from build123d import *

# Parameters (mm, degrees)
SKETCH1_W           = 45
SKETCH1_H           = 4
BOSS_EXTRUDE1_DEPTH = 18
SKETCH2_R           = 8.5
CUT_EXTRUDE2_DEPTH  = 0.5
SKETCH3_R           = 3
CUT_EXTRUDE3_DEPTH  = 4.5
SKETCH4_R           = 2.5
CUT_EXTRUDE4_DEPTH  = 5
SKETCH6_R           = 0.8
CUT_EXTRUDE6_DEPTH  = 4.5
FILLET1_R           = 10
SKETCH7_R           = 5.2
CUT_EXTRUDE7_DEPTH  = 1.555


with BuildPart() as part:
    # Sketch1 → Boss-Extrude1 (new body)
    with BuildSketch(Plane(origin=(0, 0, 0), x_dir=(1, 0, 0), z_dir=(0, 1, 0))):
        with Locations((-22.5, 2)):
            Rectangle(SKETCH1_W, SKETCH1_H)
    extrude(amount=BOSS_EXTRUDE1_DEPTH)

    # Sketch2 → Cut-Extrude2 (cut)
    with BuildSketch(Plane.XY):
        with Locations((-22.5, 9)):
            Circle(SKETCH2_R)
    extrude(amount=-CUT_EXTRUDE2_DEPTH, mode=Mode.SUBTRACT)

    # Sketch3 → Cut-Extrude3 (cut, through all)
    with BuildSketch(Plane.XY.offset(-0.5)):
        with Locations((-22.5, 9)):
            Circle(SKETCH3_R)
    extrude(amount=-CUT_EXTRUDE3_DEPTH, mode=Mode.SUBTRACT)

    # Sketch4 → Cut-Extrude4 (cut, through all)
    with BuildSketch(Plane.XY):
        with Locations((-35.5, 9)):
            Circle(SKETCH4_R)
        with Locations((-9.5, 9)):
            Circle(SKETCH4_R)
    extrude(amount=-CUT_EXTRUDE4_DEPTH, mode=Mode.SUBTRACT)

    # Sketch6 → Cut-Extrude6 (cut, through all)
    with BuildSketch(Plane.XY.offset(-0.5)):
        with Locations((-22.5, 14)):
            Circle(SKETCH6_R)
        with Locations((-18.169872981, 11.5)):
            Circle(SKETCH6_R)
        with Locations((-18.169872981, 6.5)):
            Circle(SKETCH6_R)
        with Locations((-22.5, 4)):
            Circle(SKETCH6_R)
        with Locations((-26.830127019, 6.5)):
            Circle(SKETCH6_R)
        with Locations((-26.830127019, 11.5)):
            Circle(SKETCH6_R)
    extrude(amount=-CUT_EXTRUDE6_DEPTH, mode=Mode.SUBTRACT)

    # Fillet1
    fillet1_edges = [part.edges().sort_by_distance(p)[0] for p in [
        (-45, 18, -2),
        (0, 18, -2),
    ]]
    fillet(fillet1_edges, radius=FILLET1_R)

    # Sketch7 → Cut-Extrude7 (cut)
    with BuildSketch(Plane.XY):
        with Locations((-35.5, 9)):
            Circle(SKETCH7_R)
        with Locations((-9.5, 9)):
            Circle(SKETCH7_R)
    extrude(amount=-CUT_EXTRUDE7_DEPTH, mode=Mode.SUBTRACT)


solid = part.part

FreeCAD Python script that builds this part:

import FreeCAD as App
import Part
import Sketcher


def edges_at(feature, points):
    """Names of the edges that pass closest to the given points."""
    edges = feature.Shape.Edges
    near = lambda p: min(range(len(edges)), key=lambda i: edges[i].distToShape(Part.Vertex(*p))[0])
    return sorted({f"Edge{near(p) + 1}" for p in points})

doc = App.newDocument("Part")
body = doc.addObject("PartDesign::Body", "Body")

# Sketch on XZ plane
sketch1 = body.newObject("Sketcher::SketchObject", "Sketch")
sketch1.AttachmentSupport = (doc.getObject("XZ_Plane"), [""])
sketch1.MapMode = "FlatFace"
sketch1.addGeometry(Part.LineSegment(App.Vector(-45, -4, 0), App.Vector(-45, 0, 0)), False)
sketch1.addGeometry(Part.LineSegment(App.Vector(-45, 0, 0), App.Vector(0, 0, 0)), False)
sketch1.addGeometry(Part.LineSegment(App.Vector(0, 0, 0), App.Vector(0, -4, 0)), False)
sketch1.addGeometry(Part.LineSegment(App.Vector(0, -4, 0), App.Vector(-45, -4, 0)), False)
sketch1.addConstraint(Sketcher.Constraint("Coincident", 0, 2, 1, 1))
sketch1.addConstraint(Sketcher.Constraint("Coincident", 1, 2, 2, 1))
sketch1.addConstraint(Sketcher.Constraint("Coincident", 2, 2, 3, 1))
sketch1.addConstraint(Sketcher.Constraint("Coincident", 3, 2, 0, 1))
sketch1.addConstraint(Sketcher.Constraint("Vertical", 0))
sketch1.addConstraint(Sketcher.Constraint("Horizontal", 1))
sketch1.addConstraint(Sketcher.Constraint("Vertical", 2))
sketch1.addConstraint(Sketcher.Constraint("Horizontal", 3))
sketch1.addConstraint(Sketcher.Constraint("Coincident", 1, 2, -1, 1))
sketch1.addConstraint(Sketcher.Constraint("DistanceX", 1, 1, 1, 2, 45.0))
sketch1.addConstraint(Sketcher.Constraint("DistanceY", 0, 1, 0, 2, 4.0))
pad1 = body.newObject("PartDesign::Pad", "Pad")
pad1.Profile = sketch1
pad1.Length = 18
pad1.Reversed = True

# Sketch on XY plane
sketch2 = body.newObject("Sketcher::SketchObject", "Sketch001")
sketch2.AttachmentSupport = (doc.getObject("XY_Plane"), [""])
sketch2.MapMode = "FlatFace"
sketch2.addGeometry(Part.Circle(App.Vector(-22.5, 9, 0), App.Vector(0, 0, 1), 8.5), False)
sketch2.addConstraint(Sketcher.Constraint("Diameter", 0, 17.0))
sketch2.addConstraint(Sketcher.Constraint("DistanceY", -1, 1, 0, 3, 9.0))
sketch2.addConstraint(Sketcher.Constraint("DistanceX", 0, 3, -1, 1, 22.5))
pocket1 = body.newObject("PartDesign::Pocket", "Pocket")
pocket1.Profile = sketch2
pocket1.Length = 0.5

# Sketch on XY plane
sketch3 = body.newObject("Sketcher::SketchObject", "Sketch002")
sketch3.AttachmentSupport = (doc.getObject("XY_Plane"), [""])
sketch3.MapMode = "FlatFace"
sketch3.AttachmentOffset = App.Placement(App.Vector(0, 0, -0.5), App.Rotation())
sketch3.addGeometry(Part.Circle(App.Vector(-22.5, 9, 0), App.Vector(0, 0, 1), 3), False)
sketch3.addConstraint(Sketcher.Constraint("Diameter", 0, 6.0))
sketch3.addConstraint(Sketcher.Constraint("DistanceY", -1, 1, 0, 3, 9.0))
sketch3.addConstraint(Sketcher.Constraint("DistanceX", 0, 3, -1, 1, 22.5))
pocket2 = body.newObject("PartDesign::Pocket", "Pocket001")
pocket2.Profile = sketch3
pocket2.Type = "ThroughAll"

# Sketch on XY plane
sketch4 = body.newObject("Sketcher::SketchObject", "Sketch003")
sketch4.AttachmentSupport = (doc.getObject("XY_Plane"), [""])
sketch4.MapMode = "FlatFace"
sketch4.addGeometry(Part.Circle(App.Vector(-35.5, 9, 0), App.Vector(0, 0, 1), 2.5), False)
sketch4.addGeometry(Part.Circle(App.Vector(-9.5, 9, 0), App.Vector(0, 0, 1), 2.5), False)
sketch4.addConstraint(Sketcher.Constraint("Equal", 0, 1))
sketch4.addConstraint(Sketcher.Constraint("Horizontal", 0, 3, 1, 3))
sketch4.addConstraint(Sketcher.Constraint("Diameter", 0, 5.0))
sketch4.addConstraint(Sketcher.Constraint("DistanceY", -1, 1, 0, 3, 9.0))
sketch4.addConstraint(Sketcher.Constraint("DistanceX", 0, 3, 1, 3, 26.0))
sketch4.addConstraint(Sketcher.Constraint("DistanceX", 0, 3, -1, 1, 35.5))
pocket3 = body.newObject("PartDesign::Pocket", "Pocket002")
pocket3.Profile = sketch4
pocket3.Type = "ThroughAll"

# Sketch on XY plane
sketch5 = body.newObject("Sketcher::SketchObject", "Sketch004")
sketch5.AttachmentSupport = (doc.getObject("XY_Plane"), [""])
sketch5.MapMode = "FlatFace"
sketch5.AttachmentOffset = App.Placement(App.Vector(0, 0, -0.5), App.Rotation())
sketch5.addGeometry(Part.Circle(App.Vector(-22.5, 14, 0), App.Vector(0, 0, 1), 0.8), False)
sketch5.addGeometry(Part.Circle(App.Vector(-18.169873, 11.5, 0), App.Vector(0, 0, 1), 0.8), False)
sketch5.addGeometry(Part.Circle(App.Vector(-18.169873, 6.5, 0), App.Vector(0, 0, 1), 0.8), False)
sketch5.addGeometry(Part.Circle(App.Vector(-22.5, 4, 0), App.Vector(0, 0, 1), 0.8), False)
sketch5.addGeometry(Part.Circle(App.Vector(-26.830127, 6.5, 0), App.Vector(0, 0, 1), 0.8), False)
sketch5.addGeometry(Part.Circle(App.Vector(-26.830127, 11.5, 0), App.Vector(0, 0, 1), 0.8), False)
sketch5.addConstraint(Sketcher.Constraint("Equal", 0, 1))
sketch5.addConstraint(Sketcher.Constraint("Equal", 1, 2))
sketch5.addConstraint(Sketcher.Constraint("Equal", 2, 3))
sketch5.addConstraint(Sketcher.Constraint("Equal", 3, 4))
sketch5.addConstraint(Sketcher.Constraint("Equal", 4, 5))
sketch5.addConstraint(Sketcher.Constraint("Horizontal", 2, 3, 4, 3))
sketch5.addConstraint(Sketcher.Constraint("Horizontal", 1, 3, 5, 3))
sketch5.addConstraint(Sketcher.Constraint("Vertical", 1, 3, 2, 3))
sketch5.addConstraint(Sketcher.Constraint("Vertical", 0, 3, 3, 3))
sketch5.addConstraint(Sketcher.Constraint("Vertical", 4, 3, 5, 3))
sketch5.addConstraint(Sketcher.Constraint("Diameter", 0, 1.6))
sketch5.addConstraint(Sketcher.Constraint("DistanceY", -1, 1, 0, 3, 14.0))
sketch5.addConstraint(Sketcher.Constraint("DistanceY", -1, 1, 3, 3, 4.0))
sketch5.addConstraint(Sketcher.Constraint("DistanceY", 2, 3, 1, 3, 5.0))
sketch5.addConstraint(Sketcher.Constraint("DistanceX", 0, 3, -1, 1, 22.5))
sketch5.addConstraint(Sketcher.Constraint("DistanceY", -1, 1, 1, 3, 11.5))
sketch5.addConstraint(Sketcher.Constraint("DistanceX", 1, 3, -1, 1, 18.169873))
sketch5.addConstraint(Sketcher.Constraint("DistanceX", 4, 3, -1, 1, 26.830127))
pocket4 = body.newObject("PartDesign::Pocket", "Pocket003")
pocket4.Profile = sketch5
pocket4.Type = "ThroughAll"
doc.recompute()

fillet = body.newObject("PartDesign::Fillet", "Fillet")
fillet.Base = (pocket4, edges_at(pocket4, [(-45, 18, -2), (0, 18, -2)]))
fillet.Radius = 10

# Sketch on XY plane
sketch6 = body.newObject("Sketcher::SketchObject", "Sketch005")
sketch6.AttachmentSupport = (doc.getObject("XY_Plane"), [""])
sketch6.MapMode = "FlatFace"
sketch6.addGeometry(Part.Circle(App.Vector(-35.5, 9, 0), App.Vector(0, 0, 1), 5.2), False)
sketch6.addGeometry(Part.Circle(App.Vector(-9.5, 9, 0), App.Vector(0, 0, 1), 5.2), False)
sketch6.addConstraint(Sketcher.Constraint("Equal", 0, 1))
sketch6.addConstraint(Sketcher.Constraint("Horizontal", 0, 3, 1, 3))
sketch6.addConstraint(Sketcher.Constraint("Diameter", 0, 10.4))
sketch6.addConstraint(Sketcher.Constraint("DistanceY", -1, 1, 0, 3, 9.0))
sketch6.addConstraint(Sketcher.Constraint("DistanceX", 0, 3, 1, 3, 26.0))
sketch6.addConstraint(Sketcher.Constraint("DistanceX", 0, 3, -1, 1, 35.5))
pocket5 = body.newObject("PartDesign::Pocket", "Pocket004")
pocket5.Profile = sketch6
pocket5.Length = 1.555

doc.recompute()
